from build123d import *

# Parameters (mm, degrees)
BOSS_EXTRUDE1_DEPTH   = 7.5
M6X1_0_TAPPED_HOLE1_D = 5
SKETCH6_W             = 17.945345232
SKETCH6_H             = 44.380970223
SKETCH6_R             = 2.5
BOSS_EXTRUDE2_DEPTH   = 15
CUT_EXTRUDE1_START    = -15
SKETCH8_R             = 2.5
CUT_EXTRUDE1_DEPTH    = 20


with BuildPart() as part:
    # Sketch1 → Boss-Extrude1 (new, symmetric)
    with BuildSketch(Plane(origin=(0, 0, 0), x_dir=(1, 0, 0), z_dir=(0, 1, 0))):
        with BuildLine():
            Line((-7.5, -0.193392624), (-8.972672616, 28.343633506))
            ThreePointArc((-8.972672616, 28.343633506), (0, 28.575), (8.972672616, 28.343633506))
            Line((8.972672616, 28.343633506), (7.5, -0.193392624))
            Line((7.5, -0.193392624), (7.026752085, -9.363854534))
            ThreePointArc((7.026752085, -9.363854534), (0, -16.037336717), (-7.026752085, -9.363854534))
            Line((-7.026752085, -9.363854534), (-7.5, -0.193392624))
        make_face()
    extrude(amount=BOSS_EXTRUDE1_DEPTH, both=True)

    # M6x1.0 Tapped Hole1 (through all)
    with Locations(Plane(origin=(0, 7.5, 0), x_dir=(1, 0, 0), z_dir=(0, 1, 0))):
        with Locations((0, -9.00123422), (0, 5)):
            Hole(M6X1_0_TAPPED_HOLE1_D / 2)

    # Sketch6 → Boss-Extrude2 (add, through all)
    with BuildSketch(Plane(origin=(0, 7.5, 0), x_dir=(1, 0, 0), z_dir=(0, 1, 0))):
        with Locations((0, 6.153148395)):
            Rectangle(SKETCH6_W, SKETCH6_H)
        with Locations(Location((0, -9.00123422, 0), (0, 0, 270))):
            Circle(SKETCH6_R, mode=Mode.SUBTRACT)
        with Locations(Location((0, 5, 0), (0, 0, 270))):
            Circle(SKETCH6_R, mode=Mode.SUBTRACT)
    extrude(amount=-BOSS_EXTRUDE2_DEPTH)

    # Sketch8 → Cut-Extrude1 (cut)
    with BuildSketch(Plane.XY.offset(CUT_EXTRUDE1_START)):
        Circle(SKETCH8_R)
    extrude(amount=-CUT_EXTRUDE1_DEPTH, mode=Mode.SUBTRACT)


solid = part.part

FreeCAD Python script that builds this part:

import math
import FreeCAD as App
import Part
import Sketcher

doc = App.newDocument("Part")
body = doc.addObject("PartDesign::Body", "Body")

# Sketch on XZ plane
sketch1 = body.newObject("Sketcher::SketchObject", "Sketch")
sketch1.AttachmentSupport = (doc.getObject("XZ_Plane"), [""])
sketch1.MapMode = "FlatFace"
sketch1.addGeometry(Part.LineSegment(App.Vector(-9, -28, 0), App.Vector(-8, 0, 0)), False)
sketch1.addGeometry(Part.LineSegment(App.Vector(-8, 0, 0), App.Vector(-7, 9, 0)), False)
sketch1.addGeometry(Part.ArcOfCircle(Part.Circle(App.Vector(0, 9, 0), App.Vector(0, 0, 1), 7), math.radians(3), math.radians(177)), False)
sketch1.addGeometry(Part.LineSegment(App.Vector(7, 9, 0), App.Vector(8, 0, 0)), False)
sketch1.addGeometry(Part.LineSegment(App.Vector(8, 0, 0), App.Vector(9, -28, 0)), False)
sketch1.addGeometry(Part.ArcOfCircle(Part.Circle(App.Vector(0, 146, 0), App.Vector(0, 0, 1), 174), math.radians(-92.95), math.radians(-87.05)), False)
sketch1.addConstraint(Sketcher.Constraint("Coincident", 0, 2, 1, 1))
sketch1.addConstraint(Sketcher.Constraint("Tangent", 1, 2, 2, 2))
sketch1.addConstraint(Sketcher.Constraint("Tangent", 2, 1, 3, 1))
sketch1.addConstraint(Sketcher.Constraint("Coincident", 3, 2, 4, 1))
sketch1.addConstraint(Sketcher.Constraint("Coincident", 4, 2, 5, 2))
sketch1.addConstraint(Sketcher.Constraint("Coincident", 5, 1, 0, 1))
sketch1.addConstraint(Sketcher.Constraint("Symmetric", 1, 2, 2, 1, -2))
sketch1.addConstraint(Sketcher.Constraint("Symmetric", 4, 2, 5, 1, -2))
sketch1.addConstraint(Sketcher.Constraint("Parallel", 0, 1))
sketch1.addConstraint(Sketcher.Constraint("Horizontal", 0, 2, 3, 2))
sketch1.addConstraint(Sketcher.Constraint("DistanceX", 0, 2, 3, 2, 15.0))
sketch1.addConstraint(Sketcher.Constraint("Distance", 0, 28.575))
sketch1.addConstraint(Sketcher.Constraint("Radius", 2, 7.036102))
sketch1.addConstraint(Sketcher.Constraint("Radius", 5, 174.101234))
sketch1.addConstraint(Sketcher.Constraint("DistanceY", 2, 3, 5, 3, 136.525))
sketch1.addConstraint(Sketcher.Constraint("DistanceY", -1, 1, 2, 3, 9.001234))
pad1 = body.newObject("PartDesign::Pad", "Pad")
pad1.Profile = sketch1
pad1.Length = 15
pad1.Midplane = True

# Sketch on XZ plane
sketch2 = body.newObject("Sketcher::SketchObject", "Sketch001")
sketch2.AttachmentSupport = (doc.getObject("XZ_Plane"), [""])
sketch2.MapMode = "FlatFace"
sketch2.AttachmentOffset = App.Placement(App.Vector(0, 0, -7.5), App.Rotation())
sketch2.addGeometry(Part.Circle(App.Vector(0, 9, 0), App.Vector(0, 0, 1), 2.5), False)
sketch2.addGeometry(Part.Circle(App.Vector(0, -5, 0), App.Vector(0, 0, 1), 2.5), False)
sketch2.addConstraint(Sketcher.Constraint("Equal", 0, 1))
sketch2.addConstraint(Sketcher.Constraint("PointOnObject", 0, 3, -2))
sketch2.addConstraint(Sketcher.Constraint("PointOnObject", 1, 3, -2))
sketch2.addConstraint(Sketcher.Constraint("Diameter", 0, 5.0))
sketch2.addConstraint(Sketcher.Constraint("DistanceY", 1, 3, -1, 1, 5.0))
sketch2.addConstraint(Sketcher.Constraint("DistanceY", -1, 1, 0, 3, 9.001234))
doc.recompute()
hole = body.newObject("PartDesign::Hole", "Hole")
hole.Profile = sketch2
hole.ThreadType = "None"
hole.Diameter = 5
hole.DepthType = "ThroughAll"
hole.Reversed = True

# Sketch on XZ plane
sketch3 = body.newObject("Sketcher::SketchObject", "Sketch002")
sketch3.AttachmentSupport = (doc.getObject("XZ_Plane"), [""])
sketch3.MapMode = "FlatFace"
sketch3.AttachmentOffset = App.Placement(App.Vector(0, 0, -7.5), App.Rotation())
sketch3.addGeometry(Part.LineSegment(App.Vector(-9, -28.3, 0), App.Vector(-9, 16, 0)), False)
sketch3.addGeometry(Part.LineSegment(App.Vector(-9, 16, 0), App.Vector(9, 16, 0)), False)
sketch3.addGeometry(Part.LineSegment(App.Vector(9, 16, 0), App.Vector(9, -28.3, 0)), False)
sketch3.addGeometry(Part.LineSegment(App.Vector(9, -28.3, 0), App.Vector(-9, -28.3, 0)), False)
sketch3.addGeometry(Part.Circle(App.Vector(0, 9, 0), App.Vector(0, 0, 1), 2.5), False)
sketch3.addGeometry(Part.Circle(App.Vector(0, -5, 0), App.Vector(0, 0, 1), 2.5), False)
sketch3.addConstraint(Sketcher.Constraint("Coincident", 0, 2, 1, 1))
sketch3.addConstraint(Sketcher.Constraint("Coincident", 1, 2, 2, 1))
sketch3.addConstraint(Sketcher.Constraint("Coincident", 2, 2, 3, 1))
sketch3.addConstraint(Sketcher.Constraint("Coincident", 3, 2, 0, 1))
sketch3.addConstraint(Sketcher.Constraint("Vertical", 0))
sketch3.addConstraint(Sketcher.Constraint("Horizontal", 1))
sketch3.addConstraint(Sketcher.Constraint("Vertical", 2))
sketch3.addConstraint(Sketcher.Constraint("Horizontal", 3))
sketch3.addConstraint(Sketcher.Constraint("Equal", 4, 5))
sketch3.addConstraint(Sketcher.Constraint("PointOnObject", 4, 3, -2))
sketch3.addConstraint(Sketcher.Constraint("PointOnObject", 5, 3, -2))
sketch3.addConstraint(Sketcher.Constraint("Diameter", 4, 5.0))
sketch3.addConstraint(Sketcher.Constraint("DistanceY", 5, 3, -1, 1, 5.0))
sketch3.addConstraint(Sketcher.Constraint("DistanceY", 0, 1, 0, 2, 44.38097))
sketch3.addConstraint(Sketcher.Constraint("DistanceX", 1, 1, 1, 2, 17.945345))
sketch3.addConstraint(Sketcher.Constraint("DistanceY", -1, 1, 4, 3, 9.001234))
sketch3.addConstraint(Sketcher.Constraint("DistanceX", 0, 2, -1, 1, 8.972673))
sketch3.addConstraint(Sketcher.Constraint("DistanceY", -1, 1, 0, 2, 16.037337))
pad2 = body.newObject("PartDesign::Pad", "Pad001")
pad2.Profile = sketch3
pad2.Length = 15

# Sketch on XY plane
sketch4 = body.newObject("Sketcher::SketchObject", "Sketch003")
sketch4.AttachmentSupport = (doc.getObject("XY_Plane"), [""])
sketch4.MapMode = "FlatFace"
sketch4.AttachmentOffset = App.Placement(App.Vector(0, 0, -15), App.Rotation())
sketch4.addGeometry(Part.Circle(App.Vector(0, 0, 0), App.Vector(0, 0, 1), 2.5), False)
sketch4.addConstraint(Sketcher.Constraint("Coincident", 0, 3, -1, 1))
sketch4.addConstraint(Sketcher.Constraint("Diameter", 0, 5.0))
pocket1 = body.newObject("PartDesign::Pocket", "Pocket")
pocket1.Profile = sketch4
pocket1.Length = 20

doc.recompute()
